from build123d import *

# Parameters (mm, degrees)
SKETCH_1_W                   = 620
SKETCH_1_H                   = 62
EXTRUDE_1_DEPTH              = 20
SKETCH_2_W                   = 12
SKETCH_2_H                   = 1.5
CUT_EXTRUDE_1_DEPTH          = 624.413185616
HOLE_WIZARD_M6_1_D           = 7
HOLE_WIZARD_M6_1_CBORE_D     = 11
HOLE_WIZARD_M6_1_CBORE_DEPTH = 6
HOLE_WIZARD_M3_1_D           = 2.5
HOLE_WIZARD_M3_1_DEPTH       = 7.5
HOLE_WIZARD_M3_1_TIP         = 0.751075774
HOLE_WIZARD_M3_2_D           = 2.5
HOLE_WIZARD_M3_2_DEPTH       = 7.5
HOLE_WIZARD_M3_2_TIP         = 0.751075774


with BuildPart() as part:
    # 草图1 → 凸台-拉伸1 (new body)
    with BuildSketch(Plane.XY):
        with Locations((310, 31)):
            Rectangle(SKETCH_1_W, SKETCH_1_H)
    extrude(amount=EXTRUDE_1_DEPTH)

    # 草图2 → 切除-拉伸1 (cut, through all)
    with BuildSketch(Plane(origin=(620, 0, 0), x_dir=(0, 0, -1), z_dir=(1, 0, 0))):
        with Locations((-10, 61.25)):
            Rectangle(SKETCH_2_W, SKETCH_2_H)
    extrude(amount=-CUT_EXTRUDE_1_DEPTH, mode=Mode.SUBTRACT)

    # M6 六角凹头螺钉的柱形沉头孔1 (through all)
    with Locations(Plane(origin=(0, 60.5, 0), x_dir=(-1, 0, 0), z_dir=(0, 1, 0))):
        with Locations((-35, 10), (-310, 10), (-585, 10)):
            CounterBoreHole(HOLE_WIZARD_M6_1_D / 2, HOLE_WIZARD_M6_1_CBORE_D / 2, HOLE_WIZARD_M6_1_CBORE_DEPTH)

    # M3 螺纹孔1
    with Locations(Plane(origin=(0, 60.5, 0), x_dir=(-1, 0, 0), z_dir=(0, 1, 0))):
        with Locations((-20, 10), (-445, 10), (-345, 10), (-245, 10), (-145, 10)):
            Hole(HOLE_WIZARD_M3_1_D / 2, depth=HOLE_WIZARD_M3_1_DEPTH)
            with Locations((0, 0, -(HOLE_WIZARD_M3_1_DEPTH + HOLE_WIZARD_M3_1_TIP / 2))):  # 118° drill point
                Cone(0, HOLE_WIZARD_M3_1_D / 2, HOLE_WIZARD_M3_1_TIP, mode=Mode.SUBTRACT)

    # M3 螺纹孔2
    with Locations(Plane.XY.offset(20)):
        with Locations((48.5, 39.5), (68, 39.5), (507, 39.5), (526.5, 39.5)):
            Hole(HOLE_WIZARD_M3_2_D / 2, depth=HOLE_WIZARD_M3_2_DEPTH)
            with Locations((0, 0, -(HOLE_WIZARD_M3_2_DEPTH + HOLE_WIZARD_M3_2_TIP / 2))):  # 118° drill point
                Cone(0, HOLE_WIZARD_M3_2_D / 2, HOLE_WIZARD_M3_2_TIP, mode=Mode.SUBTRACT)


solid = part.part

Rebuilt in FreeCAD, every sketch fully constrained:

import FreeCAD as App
import Part
import Sketcher


def add_polygon(sketch, points):
    """Adds a closed chain of lines whose ends are joined by coincident constraints."""
    first, n = sketch.GeometryCount, len(points)
    for a, b in zip(points, points[1:] + points[:1]):
        sketch.addGeometry(Part.LineSegment(App.Vector(*a, 0), App.Vector(*b, 0)), False)
    for i in range(n):
        sketch.addConstraint(Sketcher.Constraint("Coincident", first + i, 2, first + (i + 1) % n, 1))

doc = App.newDocument("Part")
body = doc.addObject("PartDesign::Body", "Body")

# Sketch on XY plane
sketch1 = doc.addObject("Sketcher::SketchObject", "Sketch")
body.addObject(sketch1)
sketch1.AttachmentSupport = (doc.XY_Plane, [""])
sketch1.MapMode = "FlatFace"
add_polygon(sketch1, [(0, 62), (0, 0), (620, 0), (620, 62)])  # lines 0-3
sketch1.addConstraint([
    Sketcher.Constraint("Vertical", 0),
    Sketcher.Constraint("Horizontal", 1),
    Sketcher.Constraint("Vertical", 2),
    Sketcher.Constraint("Horizontal", 3),
    Sketcher.Constraint("Coincident", 0, 2, -1, 1),
    Sketcher.Constraint("DistanceX", 1, 1, 1, 2, 620.0),
    Sketcher.Constraint("DistanceY", 0, 2, 0, 1, 62.0),
])
pad1 = doc.addObject("PartDesign::Pad", "Pad")
body.addObject(pad1)
pad1.Profile = sketch1
pad1.Length = 20

# Sketch on YZ plane
sketch2 = doc.addObject("Sketcher::SketchObject", "Sketch001")
body.addObject(sketch2)
sketch2.AttachmentSupport = (doc.YZ_Plane, [""])
sketch2.MapMode = "FlatFace"
sketch2.AttachmentOffset = App.Placement(App.Vector(0, 0, 620), App.Rotation())
add_polygon(sketch2, [(62, 16), (60.5, 16), (60.5, 4), (62, 4)])  # lines 0-3
sketch2.addConstraint([
    Sketcher.Constraint("Horizontal", 0),
    Sketcher.Constraint("Vertical", 1),
    Sketcher.Constraint("Horizontal", 2),
    Sketcher.Constraint("Vertical", 3),
    Sketcher.Constraint("DistanceY", 1, 2, 1, 1, 12.0),
    Sketcher.Constraint("DistanceX", 0, 2, 0, 1, 1.5),
    Sketcher.Constraint("DistanceY", -1, 1, 0, 2, 16.0),
    Sketcher.Constraint("DistanceX", -1, 1, 2, 2, 62.0),
])
pocket1 = doc.addObject("PartDesign::Pocket", "Pocket")
body.addObject(pocket1)
pocket1.Profile = sketch2
pocket1.Type = "ThroughAll"

# Sketch on XZ plane
sketch3 = doc.addObject("Sketcher::SketchObject", "Sketch002")
body.addObject(sketch3)
sketch3.AttachmentSupport = (doc.XZ_Plane, [""])
sketch3.MapMode = "FlatFace"
sketch3.AttachmentOffset = App.Placement(App.Vector(0, 0, -60.5), App.Rotation())
sketch3.addGeometry([
    Part.Circle(App.Vector(35, 10, 0), App.Vector(0, 0, 1), 3.5),
    Part.Circle(App.Vector(310, 10, 0), App.Vector(0, 0, 1), 3.5),
    Part.Circle(App.Vector(585, 10, 0), App.Vector(0, 0, 1), 3.5),
], False)
sketch3.addConstraint([
    Sketcher.Constraint("Equal", 0, 1),
    Sketcher.Constraint("Equal", 1, 2),
    Sketcher.Constraint("Horizontal", 0, 3, 1, 3),
    Sketcher.Constraint("Horizontal", 1, 3, 2, 3),
    Sketcher.Constraint("Diameter", 0, 7.0),
    Sketcher.Constraint("DistanceX", -1, 1, 0, 3, 35.0),
    Sketcher.Constraint("DistanceY", -1, 1, 0, 3, 10.0),
    Sketcher.Constraint("DistanceX", -1, 1, 1, 3, 310.0),
    Sketcher.Constraint("DistanceX", -1, 1, 2, 3, 585.0),
])
doc.recompute()
hole = doc.addObject("PartDesign::Hole", "Hole")
body.addObject(hole)
hole.Profile = sketch3
hole.ThreadType = "None"
hole.Diameter = 7
hole.DepthType = "ThroughAll"
hole.HoleCutType = "Counterbore"
hole.HoleCutDiameter = 11
hole.HoleCutDepth = 6
hole.Reversed = True

# Sketch on XZ plane
sketch4 = doc.addObject("Sketcher::SketchObject", "Sketch003")
body.addObject(sketch4)
sketch4.AttachmentSupport = (doc.XZ_Plane, [""])
sketch4.MapMode = "FlatFace"
sketch4.AttachmentOffset = App.Placement(App.Vector(0, 0, -60.5), App.Rotation())
sketch4.addGeometry([
    Part.Circle(App.Vector(20, 10, 0), App.Vector(0, 0, 1), 1.25),  # 0
    Part.Circle(App.Vector(445, 10, 0), App.Vector(0, 0, 1), 1.25),  # 1
    Part.Circle(App.Vector(345, 10, 0), App.Vector(0, 0, 1), 1.25),  # 2
    Part.Circle(App.Vector(245, 10, 0), App.Vector(0, 0, 1), 1.25),  # 3
    Part.Circle(App.Vector(145, 10, 0), App.Vector(0, 0, 1), 1.25),  # 4
], False)
sketch4.addConstraint([
    Sketcher.Constraint("Equal", 0, 1),
    Sketcher.Constraint("Equal", 1, 2),
    Sketcher.Constraint("Equal", 2, 3),
    Sketcher.Constraint("Equal", 3, 4),
    Sketcher.Constraint("Horizontal", 0, 3, 1, 3),
    Sketcher.Constraint("Horizontal", 1, 3, 2, 3),
    Sketcher.Constraint("Horizontal", 2, 3, 3, 3),
    Sketcher.Constraint("Horizontal", 3, 3, 4, 3),
    Sketcher.Constraint("Diameter", 0, 2.5),
    Sketcher.Constraint("DistanceX", -1, 1, 0, 3, 20.0),
    Sketcher.Constraint("DistanceY", -1, 1, 0, 3, 10.0),
    Sketcher.Constraint("DistanceX", -1, 1, 1, 3, 445.0),
    Sketcher.Constraint("DistanceX", -1, 1, 2, 3, 345.0),
    Sketcher.Constraint("DistanceX", -1, 1, 3, 3, 245.0),
    Sketcher.Constraint("DistanceX", -1, 1, 4, 3, 145.0),
])
doc.recompute()
hole2 = doc.addObject("PartDesign::Hole", "Hole001")
body.addObject(hole2)
hole2.Profile = sketch4
hole2.ThreadType = "None"
hole2.Diameter = 2.5
hole2.DepthType = "Dimension"
hole2.Depth = 7.5
hole2.DrillPoint = "Angled"
hole2.DrillPointAngle = 118
hole2.Reversed = True

# Sketch on XY plane
sketch5 = doc.addObject("Sketcher::SketchObject", "Sketch004")
body.addObject(sketch5)
sketch5.AttachmentSupport = (doc.XY_Plane, [""])
sketch5.MapMode = "FlatFace"
sketch5.AttachmentOffset = App.Placement(App.Vector(0, 0, 20), App.Rotation())
sketch5.addGeometry([
    Part.Circle(App.Vector(48.5, 39.5, 0), App.Vector(0, 0, 1), 1.25),
    Part.Circle(App.Vector(68, 39.5, 0), App.Vector(0, 0, 1), 1.25),
    Part.Circle(App.Vector(507, 39.5, 0), App.Vector(0, 0, 1), 1.25),
    Part.Circle(App.Vector(526.5, 39.5, 0), App.Vector(0, 0, 1), 1.25),
], False)
sketch5.addConstraint([
    Sketcher.Constraint("Equal", 0, 1),
    Sketcher.Constraint("Equal", 1, 2),
    Sketcher.Constraint("Equal", 2, 3),
    Sketcher.Constraint("Horizontal", 0, 3, 1, 3),
    Sketcher.Constraint("Horizontal", 1, 3, 2, 3),
    Sketcher.Constraint("Horizontal", 2, 3, 3, 3),
    Sketcher.Constraint("Diameter", 0, 2.5),
    Sketcher.Constraint("DistanceX", -1, 1, 1, 3, 68.0),
    Sketcher.Constraint("DistanceX", -1, 1, 2, 3, 507.0),
    Sketcher.Constraint("DistanceX", 0, 3, 3, 3, 478.0),
    Sketcher.Constraint("DistanceX", -1, 1, 0, 3, 48.5),
    Sketcher.Constraint("DistanceY", -1, 1, 0, 3, 39.5),
])
doc.recompute()
hole3 = doc.addObject("PartDesign::Hole", "Hole002")
body.addObject(hole3)
hole3.Profile = sketch5
hole3.ThreadType = "None"
hole3.Diameter = 2.5
hole3.DepthType = "Dimension"
hole3.Depth = 7.5
hole3.DrillPoint = "Angled"
hole3.DrillPointAngle = 118

doc.recompute()
